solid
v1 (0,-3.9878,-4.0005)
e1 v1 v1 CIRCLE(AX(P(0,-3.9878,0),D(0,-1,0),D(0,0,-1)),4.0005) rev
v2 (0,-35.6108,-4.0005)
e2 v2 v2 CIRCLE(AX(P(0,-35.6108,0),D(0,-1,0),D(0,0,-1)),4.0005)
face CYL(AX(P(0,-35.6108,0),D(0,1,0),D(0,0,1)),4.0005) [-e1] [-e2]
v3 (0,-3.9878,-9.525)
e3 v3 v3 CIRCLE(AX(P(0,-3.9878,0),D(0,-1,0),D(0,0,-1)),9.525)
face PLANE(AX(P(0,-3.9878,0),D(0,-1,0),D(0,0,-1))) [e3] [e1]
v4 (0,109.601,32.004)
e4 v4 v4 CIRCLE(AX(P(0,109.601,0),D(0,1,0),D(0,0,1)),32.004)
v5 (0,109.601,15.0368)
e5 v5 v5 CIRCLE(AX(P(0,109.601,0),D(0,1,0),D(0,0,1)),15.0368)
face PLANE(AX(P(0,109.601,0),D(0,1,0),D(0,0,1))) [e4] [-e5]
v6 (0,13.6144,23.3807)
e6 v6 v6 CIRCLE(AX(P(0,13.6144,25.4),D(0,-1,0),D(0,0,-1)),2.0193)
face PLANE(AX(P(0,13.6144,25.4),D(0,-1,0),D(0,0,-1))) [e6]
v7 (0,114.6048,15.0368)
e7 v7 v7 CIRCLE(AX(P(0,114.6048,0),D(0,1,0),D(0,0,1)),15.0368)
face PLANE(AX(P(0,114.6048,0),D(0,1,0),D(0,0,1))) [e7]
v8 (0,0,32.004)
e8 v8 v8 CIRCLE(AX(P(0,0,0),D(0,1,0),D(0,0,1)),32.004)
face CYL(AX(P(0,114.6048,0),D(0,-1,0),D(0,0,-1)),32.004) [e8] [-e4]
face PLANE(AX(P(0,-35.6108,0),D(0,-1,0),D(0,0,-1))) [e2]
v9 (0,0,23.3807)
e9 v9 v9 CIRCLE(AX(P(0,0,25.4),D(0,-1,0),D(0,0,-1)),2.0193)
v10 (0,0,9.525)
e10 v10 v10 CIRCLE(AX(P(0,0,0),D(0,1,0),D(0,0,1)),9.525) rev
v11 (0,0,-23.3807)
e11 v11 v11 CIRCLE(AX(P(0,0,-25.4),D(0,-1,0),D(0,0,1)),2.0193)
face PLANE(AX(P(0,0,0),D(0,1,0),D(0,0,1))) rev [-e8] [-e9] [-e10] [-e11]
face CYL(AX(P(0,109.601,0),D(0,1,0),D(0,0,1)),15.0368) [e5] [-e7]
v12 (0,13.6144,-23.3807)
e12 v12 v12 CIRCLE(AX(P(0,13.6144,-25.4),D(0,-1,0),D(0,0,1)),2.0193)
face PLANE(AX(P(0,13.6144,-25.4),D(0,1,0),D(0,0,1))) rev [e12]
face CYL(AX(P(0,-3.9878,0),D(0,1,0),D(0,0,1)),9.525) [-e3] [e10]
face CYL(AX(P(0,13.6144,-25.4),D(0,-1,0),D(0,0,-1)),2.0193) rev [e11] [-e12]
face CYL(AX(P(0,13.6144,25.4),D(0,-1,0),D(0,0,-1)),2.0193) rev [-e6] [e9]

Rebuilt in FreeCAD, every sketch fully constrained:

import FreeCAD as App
import Part
import Sketcher

V = App.Vector
Q = App.Units.Quantity

doc = App.newDocument("Part")
params = doc.addObject("Spreadsheet::Sheet", "Params")
for row, (alias, value) in enumerate([
    ("sketch1_diameter", "2.52 in"),
    ("pad1_length", "4.512 in"),
    ("sketch2_diameter", "2.52 in"),
    ("sketch2_diameter2", "1.184 in"),
    ("pocket1_length", "0.197 in"),
    ("sketch3_diameter", "0.159 in"),
    ("pocket2_length", "0.536 in"),
    ("sketch4_diameter", "0.75 in"),
    ("pad2_length", "0.157 in"),
    ("sketch5_diameter", "0.315 in"),
    ("pad3_length", "1.402 in"),
], start=1):
    params.set(f"A{row}", alias)
    params.set(f"B{row}", "=" + value)
    params.setAlias(f"B{row}", alias)

body = doc.addObject("PartDesign::Body", "Body")

# Sketch on XZ plane
sketch1 = body.newObject("Sketcher::SketchObject", "Sketch")
sketch1.AttachmentSupport = (doc.getObject("XZ_Plane"), [""])
sketch1.MapMode = "FlatFace"
sketch1.addGeometry(Part.Circle(V(0, 0, 0), V(0, 0, 1), 32), False)
sketch1.addConstraint([
    Sketcher.Constraint("Coincident", 0, 3, -1, 1),
    Sketcher.Constraint("Diameter", 0, Q("2.52 in")),
])
sketch1.setExpression("Constraints[1]", "Params.sketch1_diameter")
pad1 = body.newObject("PartDesign::Pad", "Pad")
pad1.Profile = sketch1
pad1.setExpression("Length", "Params.pad1_length")
pad1.Reversed = True

# Sketch on XZ plane
sketch2 = body.newObject("Sketcher::SketchObject", "Sketch001")
sketch2.AttachmentSupport = (doc.getObject("XZ_Plane"), [""])
sketch2.MapMode = "FlatFace"
sketch2.AttachmentOffset = App.Placement(V(0, 0, -4.512 * 25.4), App.Rotation())
sketch2.addGeometry([
    Part.Circle(V(0, 0, 0), V(0, 0, 1), 32),
    Part.Circle(V(0, 0, 0), V(0, 0, 1), 15),
], False)
sketch2.addConstraint([
    Sketcher.Constraint("Coincident", 0, 3, -1, 1),
    Sketcher.Constraint("Coincident", 1, 3, -1, 1),
    Sketcher.Constraint("Diameter", 0, Q("2.52 in")),
    Sketcher.Constraint("Diameter", 1, Q("1.184 in")),
])
sketch2.setExpression("Constraints[2]", "Params.sketch2_diameter")
sketch2.setExpression("Constraints[3]", "Params.sketch2_diameter2")
pocket1 = body.newObject("PartDesign::Pocket", "Pocket")
pocket1.Profile = sketch2
pocket1.setExpression("Length", "Params.pocket1_length")
pocket1.Reversed = True

# Sketch on XZ plane
sketch3 = body.newObject("Sketcher::SketchObject", "Sketch002")
sketch3.AttachmentSupport = (doc.getObject("XZ_Plane"), [""])
sketch3.MapMode = "FlatFace"
sketch3.addGeometry([
    Part.Circle(V(0, 25.4, 0), V(0, 0, 1), 2),
    Part.Circle(V(0, -25.4, 0), V(0, 0, 1), 2),
], False)
sketch3.addConstraint([
    Sketcher.Constraint("Equal", 0, 1),
    Sketcher.Constraint("Symmetric", 0, 3, 1, 3, -1, 1),
    Sketcher.Constraint("PointOnObject", 0, 3, -2),
    Sketcher.Constraint("Diameter", 0, Q("0.159 in")),
    Sketcher.Constraint("DistanceY", -1, 1, 0, 3, Q("1 in")),
])
sketch3.setExpression("Constraints[3]", "Params.sketch3_diameter")
pocket2 = body.newObject("PartDesign::Pocket", "Pocket001")
pocket2.Profile = sketch3
pocket2.setExpression("Length", "Params.pocket2_length")

# Sketch on XZ plane
sketch4 = body.newObject("Sketcher::SketchObject", "Sketch003")
sketch4.AttachmentSupport = (doc.getObject("XZ_Plane"), [""])
sketch4.MapMode = "FlatFace"
sketch4.addGeometry(Part.Circle(V(0, 0, 0), V(0, 0, 1), 10), False)
sketch4.addConstraint([
    Sketcher.Constraint("Coincident", 0, 3, -1, 1),
    Sketcher.Constraint("Diameter", 0, Q("0.75 in")),
])
sketch4.setExpression("Constraints[1]", "Params.sketch4_diameter")
pad2 = body.newObject("PartDesign::Pad", "Pad001")
pad2.Profile = sketch4
pad2.setExpression("Length", "Params.pad2_length")

# Sketch on XZ plane
sketch5 = body.newObject("Sketcher::SketchObject", "Sketch004")
sketch5.AttachmentSupport = (doc.getObject("XZ_Plane"), [""])
sketch5.MapMode = "FlatFace"
sketch5.addGeometry(Part.Circle(V(0, 0, 0), V(0, 0, 1), 4), False)
sketch5.addConstraint([
    Sketcher.Constraint("Coincident", 0, 3, -1, 1),
    Sketcher.Constraint("Diameter", 0, Q("0.315 in")),
])
sketch5.setExpression("Constraints[1]", "Params.sketch5_diameter")
pad3 = body.newObject("PartDesign::Pad", "Pad002")
pad3.Profile = sketch5
pad3.setExpression("Length", "Params.pad3_length")

doc.recompute()
